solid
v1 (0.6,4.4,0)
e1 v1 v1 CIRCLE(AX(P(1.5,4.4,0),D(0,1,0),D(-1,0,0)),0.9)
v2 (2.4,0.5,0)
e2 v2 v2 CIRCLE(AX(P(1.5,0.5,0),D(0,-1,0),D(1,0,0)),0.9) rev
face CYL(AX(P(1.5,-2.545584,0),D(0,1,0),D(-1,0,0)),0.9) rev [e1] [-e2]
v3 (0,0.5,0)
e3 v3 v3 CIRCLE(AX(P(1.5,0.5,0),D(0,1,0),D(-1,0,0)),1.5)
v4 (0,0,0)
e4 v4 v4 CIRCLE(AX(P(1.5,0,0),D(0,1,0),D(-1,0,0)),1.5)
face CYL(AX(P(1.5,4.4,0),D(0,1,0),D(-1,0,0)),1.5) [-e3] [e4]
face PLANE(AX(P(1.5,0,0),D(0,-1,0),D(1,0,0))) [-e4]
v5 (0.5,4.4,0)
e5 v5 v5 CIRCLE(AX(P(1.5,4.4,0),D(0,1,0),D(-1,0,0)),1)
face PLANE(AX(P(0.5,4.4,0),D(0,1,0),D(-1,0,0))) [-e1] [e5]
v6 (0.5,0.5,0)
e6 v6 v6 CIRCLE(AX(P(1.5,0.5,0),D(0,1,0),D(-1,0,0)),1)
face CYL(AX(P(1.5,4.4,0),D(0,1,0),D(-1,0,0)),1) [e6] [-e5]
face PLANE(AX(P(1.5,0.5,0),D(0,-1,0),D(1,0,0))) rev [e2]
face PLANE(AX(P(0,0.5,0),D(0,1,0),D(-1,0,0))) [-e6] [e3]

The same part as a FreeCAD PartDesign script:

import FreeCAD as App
import Part
import Sketcher

V = App.Vector
Q = App.Units.Quantity


def add_polygon(sketch, points):
    """Adds a closed chain of lines whose ends are joined by coincident constraints."""
    first, n = sketch.GeometryCount, len(points)
    for a, b in zip(points, points[1:] + points[:1]):
        sketch.addGeometry(Part.LineSegment(App.Vector(*a, 0), App.Vector(*b, 0)), False)
    for i in range(n):
        sketch.addConstraint(Sketcher.Constraint("Coincident", first + i, 2, first + (i + 1) % n, 1))

doc = App.newDocument("Part")
body = doc.addObject("PartDesign::Body", "Body")

# Sketch on XY plane
sketch1 = body.newObject("Sketcher::SketchObject", "Sketch")
sketch1.AttachmentSupport = (doc.getObject("XY_Plane"), [""])
sketch1.MapMode = "FlatFace"
add_polygon(sketch1, [(0, 0.5), (0, 0), (1.5, 0), (1.5, 4.4), (0.5, 4.4), (0.5, 0.5)])  # lines 0-5
sketch1.addGeometry(Part.LineSegment(V(1.5, 4.4, 0), V(1.5, 0, 0)), True)  # axis
sketch1.addConstraint(Sketcher.Constraint("Vertical", 0))
sketch1.addConstraint(Sketcher.Constraint("Horizontal", 1))
sketch1.addConstraint(Sketcher.Constraint("Vertical", 2))
sketch1.addConstraint(Sketcher.Constraint("Horizontal", 3))
sketch1.addConstraint(Sketcher.Constraint("Vertical", 4))
sketch1.addConstraint(Sketcher.Constraint("Horizontal", 5))
sketch1.addConstraint(Sketcher.Constraint("Vertical", 6))
sketch1.addConstraint(Sketcher.Constraint("Coincident", 0, 2, -1, 1))
sketch1.addConstraint(Sketcher.Constraint("Coincident", 6, 1, 2, 2))
sketch1.addConstraint(Sketcher.Constraint("PointOnObject", 6, 2, -1))
sketch1.addConstraint(Sketcher.Constraint("Equal", 5, 0))
sketch1.addConstraint(Sketcher.Constraint("DistanceX", 3, 2, 3, 1, Q("1 mm")))
sketch1.addConstraint(Sketcher.Constraint("DistanceX", 1, 1, 1, 2, Q("1.5 mm")))
sketch1.addConstraint(Sketcher.Constraint("DistanceY", 2, 1, 2, 2, Q("4.4 mm")))
revolution = body.newObject("PartDesign::Revolution", "Revolution")
revolution.Profile = sketch1
revolution.ReferenceAxis = (sketch1, ["Axis0"])
revolution.Angle = 360

# Sketch on XZ plane
sketch2 = body.newObject("Sketcher::SketchObject", "Sketch001")
sketch2.AttachmentSupport = (doc.getObject("XZ_Plane"), [""])
sketch2.MapMode = "FlatFace"
sketch2.AttachmentOffset = App.Placement(V(0, 0, -4.4), App.Rotation())
sketch2.addGeometry(Part.Circle(V(1.5, 0, 0), V(0, 0, 1), 0.9), False)
sketch2.addConstraint(Sketcher.Constraint("PointOnObject", 0, 3, -1))
sketch2.addConstraint(Sketcher.Constraint("Diameter", 0, Q("1.8 mm")))
sketch2.addConstraint(Sketcher.Constraint("DistanceX", -1, 1, 0, 3, Q("1.5 mm")))
pocket1 = body.newObject("PartDesign::Pocket", "Pocket")
pocket1.Profile = sketch2
pocket1.Length = 3.9
pocket1.Reversed = True

doc.recompute()
